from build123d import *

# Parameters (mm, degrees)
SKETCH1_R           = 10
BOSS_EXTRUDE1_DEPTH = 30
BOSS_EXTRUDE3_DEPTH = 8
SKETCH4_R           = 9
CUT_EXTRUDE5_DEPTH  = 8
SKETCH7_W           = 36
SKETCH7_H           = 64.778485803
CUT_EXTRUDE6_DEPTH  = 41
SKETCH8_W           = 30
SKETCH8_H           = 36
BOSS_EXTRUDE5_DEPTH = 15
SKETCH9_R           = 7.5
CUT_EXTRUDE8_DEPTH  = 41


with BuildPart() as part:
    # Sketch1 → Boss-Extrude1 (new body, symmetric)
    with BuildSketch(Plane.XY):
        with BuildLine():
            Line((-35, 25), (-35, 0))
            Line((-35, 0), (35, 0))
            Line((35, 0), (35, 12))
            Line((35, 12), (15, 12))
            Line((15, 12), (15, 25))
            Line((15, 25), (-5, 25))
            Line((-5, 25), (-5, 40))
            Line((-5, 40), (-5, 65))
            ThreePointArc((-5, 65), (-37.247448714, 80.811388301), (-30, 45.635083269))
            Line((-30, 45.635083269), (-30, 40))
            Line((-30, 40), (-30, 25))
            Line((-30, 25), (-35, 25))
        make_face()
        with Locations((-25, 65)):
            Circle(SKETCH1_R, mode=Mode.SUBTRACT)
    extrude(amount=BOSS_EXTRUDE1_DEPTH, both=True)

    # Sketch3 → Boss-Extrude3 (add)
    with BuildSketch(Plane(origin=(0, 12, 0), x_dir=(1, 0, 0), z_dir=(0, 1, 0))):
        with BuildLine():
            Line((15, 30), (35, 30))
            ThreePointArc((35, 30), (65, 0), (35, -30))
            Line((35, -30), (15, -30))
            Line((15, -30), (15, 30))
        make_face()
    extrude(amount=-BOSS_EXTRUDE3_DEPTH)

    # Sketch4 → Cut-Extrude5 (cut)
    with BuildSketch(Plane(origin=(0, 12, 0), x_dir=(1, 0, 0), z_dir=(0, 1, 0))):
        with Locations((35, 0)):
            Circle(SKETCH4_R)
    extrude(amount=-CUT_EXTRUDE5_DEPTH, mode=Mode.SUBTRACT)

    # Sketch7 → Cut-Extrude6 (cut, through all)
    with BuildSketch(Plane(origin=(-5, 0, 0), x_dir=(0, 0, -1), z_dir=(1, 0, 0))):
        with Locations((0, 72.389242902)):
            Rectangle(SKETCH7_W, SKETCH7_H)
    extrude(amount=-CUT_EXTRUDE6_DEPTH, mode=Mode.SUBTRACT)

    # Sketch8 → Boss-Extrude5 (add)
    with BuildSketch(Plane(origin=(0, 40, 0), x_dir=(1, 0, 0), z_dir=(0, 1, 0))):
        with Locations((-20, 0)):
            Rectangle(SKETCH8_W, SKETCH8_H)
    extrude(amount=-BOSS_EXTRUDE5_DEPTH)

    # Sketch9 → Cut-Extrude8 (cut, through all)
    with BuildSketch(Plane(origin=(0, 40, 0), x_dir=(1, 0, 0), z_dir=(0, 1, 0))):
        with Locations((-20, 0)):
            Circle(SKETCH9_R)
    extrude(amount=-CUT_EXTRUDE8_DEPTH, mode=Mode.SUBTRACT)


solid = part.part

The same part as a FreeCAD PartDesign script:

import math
import FreeCAD as App
import Part
import Sketcher
from FreeCAD import Vector

doc = App.newDocument("Part")
params = doc.addObject("Spreadsheet::Sheet", "Params")
for row, (alias, value) in enumerate([
    ("sketch1_diameter", "20 mm"),
    ("sketch1_radius", "20 mm"),
    ("sketch1_width", "70 mm"),
    ("sketch1_width2", "20 mm"),
    ("sketch1_width3", "5 mm"),
    ("pad1_length", "60 mm"),
    ("sketch2_radius", "30 mm"),
    ("sketch2_width", "20 mm"),
    ("pad2_length", "8 mm"),
    ("sketch3_diameter", "18 mm"),
    ("pocket1_length", "8 mm"),
    ("sketch4_height", "36 mm"),
    ("sketch5_width", "30 mm"),
    ("sketch5_height", "36 mm"),
    ("pad3_length", "15 mm"),
    ("sketch6_diameter", "15 mm"),
], start=1):
    params.set(f"A{row}", alias)
    params.set(f"B{row}", "=" + value)
    params.setAlias(f"B{row}", alias)

body = doc.addObject("PartDesign::Body", "Body")

sketch1 = body.newObject("Sketcher::SketchObject", "Sketch")
sketch1.AttachmentSupport = (doc.getObject("XY_Plane"), [""])
sketch1.MapMode = "FlatFace"
sketch1.addGeometry(Part.LineSegment(Vector(-35, 25, 0), Vector(-35, 0, 0)), False)
sketch1.addGeometry(Part.LineSegment(Vector(-35, 0, 0), Vector(35, 0, 0)), False)
sketch1.addGeometry(Part.LineSegment(Vector(35, 0, 0), Vector(35, 12, 0)), False)
sketch1.addGeometry(Part.LineSegment(Vector(35, 12, 0), Vector(15, 12, 0)), False)
sketch1.addGeometry(Part.LineSegment(Vector(15, 12, 0), Vector(15, 25, 0)), False)
sketch1.addGeometry(Part.LineSegment(Vector(15, 25, 0), Vector(-5, 25, 0)), False)
sketch1.addGeometry(Part.LineSegment(Vector(-5, 25, 0), Vector(-5, 65, 0)), False)
sketch1.addGeometry(Part.ArcOfCircle(Part.Circle(Vector(-25, 65, 0), Vector(0, 0, 1), 20), math.radians(0), math.radians(256)), False)
sketch1.addGeometry(Part.LineSegment(Vector(-30, 46, 0), Vector(-30, 25, 0)), False)
sketch1.addGeometry(Part.LineSegment(Vector(-30, 25, 0), Vector(-35, 25, 0)), False)
sketch1.addGeometry(Part.Circle(Vector(-25, 65, 0), Vector(0, 0, 1), 10), False)
sketch1.addConstraint(Sketcher.Constraint("Coincident", 0, 2, 1, 1))
sketch1.addConstraint(Sketcher.Constraint("Coincident", 1, 2, 2, 1))
sketch1.addConstraint(Sketcher.Constraint("Coincident", 2, 2, 3, 1))
sketch1.addConstraint(Sketcher.Constraint("Coincident", 3, 2, 4, 1))
sketch1.addConstraint(Sketcher.Constraint("Coincident", 4, 2, 5, 1))
sketch1.addConstraint(Sketcher.Constraint("Coincident", 5, 2, 6, 1))
sketch1.addConstraint(Sketcher.Constraint("Tangent", 6, 2, 7, 1))
sketch1.addConstraint(Sketcher.Constraint("Coincident", 7, 2, 8, 1))
sketch1.addConstraint(Sketcher.Constraint("Coincident", 8, 2, 9, 1))
sketch1.addConstraint(Sketcher.Constraint("Coincident", 9, 2, 0, 1))
sketch1.addConstraint(Sketcher.Constraint("Vertical", 0))
sketch1.addConstraint(Sketcher.Constraint("Horizontal", 1))
sketch1.addConstraint(Sketcher.Constraint("Vertical", 2))
sketch1.addConstraint(Sketcher.Constraint("Horizontal", 3))
sketch1.addConstraint(Sketcher.Constraint("Vertical", 4))
sketch1.addConstraint(Sketcher.Constraint("Horizontal", 5))
sketch1.addConstraint(Sketcher.Constraint("Vertical", 6))
sketch1.addConstraint(Sketcher.Constraint("Vertical", 8))
sketch1.addConstraint(Sketcher.Constraint("Horizontal", 9))
sketch1.addConstraint(Sketcher.Constraint("Coincident", 10, 3, 7, 3))
sketch1.addConstraint(Sketcher.Constraint("Symmetric", 0, 2, 1, 2, -1, 1))
sketch1.addConstraint(Sketcher.Constraint("Horizontal", 5, 2, 8, 2))
sketch1.addConstraint(Sketcher.Constraint("Equal", 3, 5))
sketch1.addConstraint(Sketcher.Constraint("Diameter", 10, 20.0))
sketch1.addConstraint(Sketcher.Constraint("Radius", 7, 20.0))
sketch1.addConstraint(Sketcher.Constraint("DistanceX", 1, 1, 1, 2, 70.0))
sketch1.addConstraint(Sketcher.Constraint("DistanceX", 3, 2, 3, 1, 20.0))
sketch1.addConstraint(Sketcher.Constraint("DistanceX", 9, 2, 9, 1, 5.0))
sketch1.addConstraint(Sketcher.Constraint("DistanceY", 0, 2, 0, 1, 25.0))
sketch1.addConstraint(Sketcher.Constraint("DistanceY", 2, 1, 2, 2, 12.0))
sketch1.addConstraint(Sketcher.Constraint("DistanceY", 6, 1, 6, 2, 40.0))
sketch1.setExpression("Constraints[23]", "Params.sketch1_diameter")
sketch1.setExpression("Constraints[24]", "Params.sketch1_radius")
sketch1.setExpression("Constraints[25]", "Params.sketch1_width")
sketch1.setExpression("Constraints[26]", "Params.sketch1_width2")
sketch1.setExpression("Constraints[27]", "Params.sketch1_width3")
pad1 = body.newObject("PartDesign::Pad", "Pad")
pad1.Profile = sketch1
pad1.setExpression("Length", "Params.pad1_length")
pad1.Midplane = True

sketch2 = body.newObject("Sketcher::SketchObject", "Sketch001")
sketch2.AttachmentSupport = (doc.getObject("XZ_Plane"), [""])
sketch2.MapMode = "FlatFace"
sketch2.AttachmentOffset = App.Placement(Vector(0, 0, -12), App.Rotation())
sketch2.addGeometry(Part.LineSegment(Vector(35, -30, 0), Vector(15, -30, 0)), False)
sketch2.addGeometry(Part.LineSegment(Vector(15, -30, 0), Vector(15, 30, 0)), False)
sketch2.addGeometry(Part.LineSegment(Vector(15, 30, 0), Vector(35, 30, 0)), False)
sketch2.addGeometry(Part.ArcOfCircle(Part.Circle(Vector(35, 0, 0), Vector(0, 0, 1), 30), math.radians(-90), math.radians(90)), False)
sketch2.addConstraint(Sketcher.Constraint("Coincident", 0, 2, 1, 1))
sketch2.addConstraint(Sketcher.Constraint("Coincident", 1, 2, 2, 1))
sketch2.addConstraint(Sketcher.Constraint("Tangent", 2, 2, 3, 2))
sketch2.addConstraint(Sketcher.Constraint("Tangent", 3, 1, 0, 1))
sketch2.addConstraint(Sketcher.Constraint("Horizontal", 0))
sketch2.addConstraint(Sketcher.Constraint("Vertical", 1))
sketch2.addConstraint(Sketcher.Constraint("Horizontal", 2))
sketch2.addConstraint(Sketcher.Constraint("PointOnObject", 3, 3, -1))
sketch2.addConstraint(Sketcher.Constraint("Radius", 3, 30.0))
sketch2.addConstraint(Sketcher.Constraint("DistanceX", 0, 2, 0, 1, 20.0))
sketch2.addConstraint(Sketcher.Constraint("DistanceX", -1, 1, 3, 3, 35.0))
sketch2.setExpression("Constraints[8]", "Params.sketch2_radius")
sketch2.setExpression("Constraints[9]", "Params.sketch2_width")
pad2 = body.newObject("PartDesign::Pad", "Pad001")
pad2.Profile = sketch2
pad2.setExpression("Length", "Params.pad2_length")

sketch3 = body.newObject("Sketcher::SketchObject", "Sketch002")
sketch3.AttachmentSupport = (doc.getObject("XZ_Plane"), [""])
sketch3.MapMode = "FlatFace"
sketch3.AttachmentOffset = App.Placement(Vector(0, 0, -12), App.Rotation())
sketch3.addGeometry(Part.Circle(Vector(35, 0, 0), Vector(0, 0, 1), 9), False)
sketch3.addConstraint(Sketcher.Constraint("PointOnObject", 0, 3, -1))
sketch3.addConstraint(Sketcher.Constraint("Diameter", 0, 18.0))
sketch3.addConstraint(Sketcher.Constraint("DistanceX", -1, 1, 0, 3, 35.0))
sketch3.setExpression("Constraints[1]", "Params.sketch3_diameter")
pocket1 = body.newObject("PartDesign::Pocket", "Pocket")
pocket1.Profile = sketch3
pocket1.setExpression("Length", "Params.pocket1_length")
pocket1.Reversed = True

sketch4 = body.newObject("Sketcher::SketchObject", "Sketch003")
sketch4.AttachmentSupport = (doc.getObject("YZ_Plane"), [""])
sketch4.MapMode = "FlatFace"
sketch4.AttachmentOffset = App.Placement(Vector(0, 0, -5), App.Rotation())
sketch4.addGeometry(Part.LineSegment(Vector(105, 18, 0), Vector(40, 18, 0)), False)
sketch4.addGeometry(Part.LineSegment(Vector(40, 18, 0), Vector(40, -18, 0)), False)
sketch4.addGeometry(Part.LineSegment(Vector(40, -18, 0), Vector(105, -18, 0)), False)
sketch4.addGeometry(Part.LineSegment(Vector(105, -18, 0), Vector(105, 18, 0)), False)
sketch4.addConstraint(Sketcher.Constraint("Coincident", 0, 2, 1, 1))
sketch4.addConstraint(Sketcher.Constraint("Coincident", 1, 2, 2, 1))
sketch4.addConstraint(Sketcher.Constraint("Coincident", 2, 2, 3, 1))
sketch4.addConstraint(Sketcher.Constraint("Coincident", 3, 2, 0, 1))
sketch4.addConstraint(Sketcher.Constraint("Horizontal", 0))
sketch4.addConstraint(Sketcher.Constraint("Vertical", 1))
sketch4.addConstraint(Sketcher.Constraint("Horizontal", 2))
sketch4.addConstraint(Sketcher.Constraint("Vertical", 3))
sketch4.addConstraint(Sketcher.Constraint("DistanceY", 1, 2, 1, 1, 36.0))
sketch4.addConstraint(Sketcher.Constraint("DistanceX", -1, 1, 0, 2, 40.0))
sketch4.addConstraint(Sketcher.Constraint("DistanceY", -1, 1, 0, 2, 18.0))
sketch4.addConstraint(Sketcher.Constraint("DistanceX", 0, 2, 0, 1, 64.778486))
sketch4.setExpression("Constraints[8]", "Params.sketch4_height")
pocket2 = body.newObject("PartDesign::Pocket", "Pocket001")
pocket2.Profile = sketch4
pocket2.Type = "ThroughAll"

sketch5 = body.newObject("Sketcher::SketchObject", "Sketch004")
sketch5.AttachmentSupport = (doc.getObject("XZ_Plane"), [""])
sketch5.MapMode = "FlatFace"
sketch5.AttachmentOffset = App.Placement(Vector(0, 0, -40), App.Rotation())
sketch5.addGeometry(Part.LineSegment(Vector(-35, -18, 0), Vector(-35, 18, 0)), False)
sketch5.addGeometry(Part.LineSegment(Vector(-35, 18, 0), Vector(-5, 18, 0)), False)
sketch5.addGeometry(Part.LineSegment(Vector(-5, 18, 0), Vector(-5, -18, 0)), False)
sketch5.addGeometry(Part.LineSegment(Vector(-5, -18, 0), Vector(-35, -18, 0)), False)
sketch5.addConstraint(Sketcher.Constraint("Coincident", 0, 2, 1, 1))
sketch5.addConstraint(Sketcher.Constraint("Coincident", 1, 2, 2, 1))
sketch5.addConstraint(Sketcher.Constraint("Coincident", 2, 2, 3, 1))
sketch5.addConstraint(Sketcher.Constraint("Coincident", 3, 2, 0, 1))
sketch5.addConstraint(Sketcher.Constraint("Vertical", 0))
sketch5.addConstraint(Sketcher.Constraint("Horizontal", 1))
sketch5.addConstraint(Sketcher.Constraint("Vertical", 2))
sketch5.addConstraint(Sketcher.Constraint("Horizontal", 3))
sketch5.addConstraint(Sketcher.Constraint("DistanceX", 1, 1, 1, 2, 30.0))
sketch5.addConstraint(Sketcher.Constraint("DistanceY", 0, 1, 0, 2, 36.0))
sketch5.addConstraint(Sketcher.Constraint("DistanceX", 0, 2, -1, 1, 35.0))
sketch5.addConstraint(Sketcher.Constraint("DistanceY", -1, 1, 0, 2, 18.0))
sketch5.setExpression("Constraints[8]", "Params.sketch5_width")
sketch5.setExpression("Constraints[9]", "Params.sketch5_height")
pad3 = body.newObject("PartDesign::Pad", "Pad002")
pad3.Profile = sketch5
pad3.setExpression("Length", "Params.pad3_length")

sketch6 = body.newObject("Sketcher::SketchObject", "Sketch005")
sketch6.AttachmentSupport = (doc.getObject("XZ_Plane"), [""])
sketch6.MapMode = "FlatFace"
sketch6.AttachmentOffset = App.Placement(Vector(0, 0, -40), App.Rotation())
sketch6.addGeometry(Part.Circle(Vector(-20, 0, 0), Vector(0, 0, 1), 8), False)
sketch6.addConstraint(Sketcher.Constraint("PointOnObject", 0, 3, -1))
sketch6.addConstraint(Sketcher.Constraint("Diameter", 0, 15.0))
sketch6.addConstraint(Sketcher.Constraint("DistanceX", 0, 3, -1, 1, 20.0))
sketch6.setExpression("Constraints[1]", "Params.sketch6_diameter")
pocket3 = body.newObject("PartDesign::Pocket", "Pocket002")
pocket3.Profile = sketch6
pocket3.Type = "ThroughAll"
pocket3.Reversed = True

doc.recompute()
